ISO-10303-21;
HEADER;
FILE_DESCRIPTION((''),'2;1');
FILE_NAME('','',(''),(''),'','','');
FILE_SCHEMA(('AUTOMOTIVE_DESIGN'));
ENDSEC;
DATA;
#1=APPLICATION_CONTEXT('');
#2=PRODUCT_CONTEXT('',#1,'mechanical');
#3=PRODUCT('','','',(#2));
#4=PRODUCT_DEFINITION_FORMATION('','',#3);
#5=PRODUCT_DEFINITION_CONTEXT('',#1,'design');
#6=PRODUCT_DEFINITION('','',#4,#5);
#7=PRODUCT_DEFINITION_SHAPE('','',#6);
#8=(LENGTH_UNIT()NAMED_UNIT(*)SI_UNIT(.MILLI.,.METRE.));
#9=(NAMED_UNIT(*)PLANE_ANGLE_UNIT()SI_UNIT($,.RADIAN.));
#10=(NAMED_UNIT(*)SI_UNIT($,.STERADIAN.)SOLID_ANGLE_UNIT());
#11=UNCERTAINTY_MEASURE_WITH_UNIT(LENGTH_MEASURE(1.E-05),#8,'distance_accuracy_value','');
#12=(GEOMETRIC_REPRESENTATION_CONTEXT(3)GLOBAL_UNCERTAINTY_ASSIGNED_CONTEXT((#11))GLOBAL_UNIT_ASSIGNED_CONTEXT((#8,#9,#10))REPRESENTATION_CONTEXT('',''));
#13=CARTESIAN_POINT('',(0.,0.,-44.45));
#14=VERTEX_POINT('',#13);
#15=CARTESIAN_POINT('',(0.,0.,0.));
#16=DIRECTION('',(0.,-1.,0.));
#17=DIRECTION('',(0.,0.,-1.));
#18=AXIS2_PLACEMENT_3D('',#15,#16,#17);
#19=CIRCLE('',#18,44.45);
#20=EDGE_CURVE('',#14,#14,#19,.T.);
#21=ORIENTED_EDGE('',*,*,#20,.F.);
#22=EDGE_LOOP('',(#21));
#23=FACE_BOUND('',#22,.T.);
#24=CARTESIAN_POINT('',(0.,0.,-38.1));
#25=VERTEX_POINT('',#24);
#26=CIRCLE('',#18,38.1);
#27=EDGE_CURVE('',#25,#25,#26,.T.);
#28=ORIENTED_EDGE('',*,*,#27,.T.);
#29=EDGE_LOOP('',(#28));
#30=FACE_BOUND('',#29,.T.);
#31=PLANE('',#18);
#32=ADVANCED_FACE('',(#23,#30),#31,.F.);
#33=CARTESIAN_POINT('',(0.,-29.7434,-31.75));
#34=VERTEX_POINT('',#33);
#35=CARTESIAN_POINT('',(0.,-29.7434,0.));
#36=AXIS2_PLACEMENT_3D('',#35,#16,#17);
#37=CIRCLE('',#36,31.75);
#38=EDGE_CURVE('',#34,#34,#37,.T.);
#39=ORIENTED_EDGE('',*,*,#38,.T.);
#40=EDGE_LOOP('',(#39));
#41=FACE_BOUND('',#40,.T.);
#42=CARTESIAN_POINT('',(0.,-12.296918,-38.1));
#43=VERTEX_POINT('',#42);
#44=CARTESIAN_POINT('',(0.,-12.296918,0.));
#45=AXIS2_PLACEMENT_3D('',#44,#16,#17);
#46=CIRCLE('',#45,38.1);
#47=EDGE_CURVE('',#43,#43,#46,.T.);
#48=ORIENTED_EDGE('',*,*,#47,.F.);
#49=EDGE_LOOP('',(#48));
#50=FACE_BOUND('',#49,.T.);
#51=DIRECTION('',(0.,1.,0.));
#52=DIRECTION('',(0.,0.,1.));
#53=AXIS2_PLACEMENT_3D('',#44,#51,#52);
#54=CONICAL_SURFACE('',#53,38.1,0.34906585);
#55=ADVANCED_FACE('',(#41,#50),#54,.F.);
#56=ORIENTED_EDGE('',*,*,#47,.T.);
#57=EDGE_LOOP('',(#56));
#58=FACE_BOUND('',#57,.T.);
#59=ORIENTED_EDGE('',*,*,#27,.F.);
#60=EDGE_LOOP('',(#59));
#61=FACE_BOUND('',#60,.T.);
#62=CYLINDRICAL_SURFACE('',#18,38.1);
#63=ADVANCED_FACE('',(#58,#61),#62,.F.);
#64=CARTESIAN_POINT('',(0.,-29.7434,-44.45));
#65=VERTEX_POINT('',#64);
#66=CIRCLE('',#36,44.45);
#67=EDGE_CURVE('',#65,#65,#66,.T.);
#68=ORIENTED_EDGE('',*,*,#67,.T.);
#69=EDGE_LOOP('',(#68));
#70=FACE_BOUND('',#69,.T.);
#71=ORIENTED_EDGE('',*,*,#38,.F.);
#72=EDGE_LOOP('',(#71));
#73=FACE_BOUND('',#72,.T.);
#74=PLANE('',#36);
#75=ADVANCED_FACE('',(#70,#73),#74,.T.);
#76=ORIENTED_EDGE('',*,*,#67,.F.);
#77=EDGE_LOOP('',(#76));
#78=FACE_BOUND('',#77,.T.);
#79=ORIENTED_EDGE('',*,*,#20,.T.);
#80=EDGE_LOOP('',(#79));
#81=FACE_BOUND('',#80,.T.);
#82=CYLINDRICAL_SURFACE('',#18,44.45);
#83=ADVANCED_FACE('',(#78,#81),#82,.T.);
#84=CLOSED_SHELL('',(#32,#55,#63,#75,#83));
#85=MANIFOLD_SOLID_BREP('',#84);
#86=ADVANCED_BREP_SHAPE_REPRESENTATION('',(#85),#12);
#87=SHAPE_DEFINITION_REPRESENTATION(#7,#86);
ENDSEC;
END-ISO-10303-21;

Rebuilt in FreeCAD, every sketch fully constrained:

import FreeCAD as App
import Part
import Sketcher
from FreeCAD import Vector
Q = App.Units.Quantity

doc = App.newDocument("Part")
body = doc.addObject("PartDesign::Body", "Body")

# Sketch on XY plane
sketch1 = body.newObject("Sketcher::SketchObject", "Sketch")
sketch1.AttachmentSupport = (doc.getObject("XY_Plane"), [""])
sketch1.MapMode = "FlatFace"
sketch1.addGeometry([
    Part.LineSegment(Vector(-38, -12, 0), Vector(-38, 0, 0)),  # 0
    Part.LineSegment(Vector(-38, 0, 0), Vector(-44, 0, 0)),  # 1
    Part.LineSegment(Vector(-44, 0, 0), Vector(-44, -30, 0)),  # 2
    Part.LineSegment(Vector(-44, -30, 0), Vector(-32, -30, 0)),  # 3
    Part.LineSegment(Vector(-32, -30, 0), Vector(-38, -12, 0)),  # 4
], False)
sketch1.addConstraint([
    Sketcher.Constraint("Coincident", 0, 2, 1, 1),
    Sketcher.Constraint("Coincident", 1, 2, 2, 1),
    Sketcher.Constraint("Coincident", 2, 2, 3, 1),
    Sketcher.Constraint("Coincident", 3, 2, 4, 1),
    Sketcher.Constraint("Coincident", 4, 2, 0, 1),
    Sketcher.Constraint("Vertical", 0),
    Sketcher.Constraint("Horizontal", 1),
    Sketcher.Constraint("Vertical", 2),
    Sketcher.Constraint("Horizontal", 3),
    Sketcher.Constraint("PointOnObject", 0, 2, -1),
    Sketcher.Constraint("DistanceX", 3, 1, 3, 2, Q("0.5 in")),
    Sketcher.Constraint("Angle", 4, Q("110 deg")),
    Sketcher.Constraint("DistanceX", 1, 2, 1, 1, Q("0.25 in")),
    Sketcher.Constraint("DistanceX", 0, 2, -1, 1, Q("1.5 in")),
    Sketcher.Constraint("DistanceY", 2, 2, 2, 1, Q("1.171 in")),
])
revolution = body.newObject("PartDesign::Revolution", "Revolution")
revolution.Profile = sketch1
revolution.ReferenceAxis = (sketch1, ["V_Axis"])
revolution.Angle = 360

doc.recompute()
